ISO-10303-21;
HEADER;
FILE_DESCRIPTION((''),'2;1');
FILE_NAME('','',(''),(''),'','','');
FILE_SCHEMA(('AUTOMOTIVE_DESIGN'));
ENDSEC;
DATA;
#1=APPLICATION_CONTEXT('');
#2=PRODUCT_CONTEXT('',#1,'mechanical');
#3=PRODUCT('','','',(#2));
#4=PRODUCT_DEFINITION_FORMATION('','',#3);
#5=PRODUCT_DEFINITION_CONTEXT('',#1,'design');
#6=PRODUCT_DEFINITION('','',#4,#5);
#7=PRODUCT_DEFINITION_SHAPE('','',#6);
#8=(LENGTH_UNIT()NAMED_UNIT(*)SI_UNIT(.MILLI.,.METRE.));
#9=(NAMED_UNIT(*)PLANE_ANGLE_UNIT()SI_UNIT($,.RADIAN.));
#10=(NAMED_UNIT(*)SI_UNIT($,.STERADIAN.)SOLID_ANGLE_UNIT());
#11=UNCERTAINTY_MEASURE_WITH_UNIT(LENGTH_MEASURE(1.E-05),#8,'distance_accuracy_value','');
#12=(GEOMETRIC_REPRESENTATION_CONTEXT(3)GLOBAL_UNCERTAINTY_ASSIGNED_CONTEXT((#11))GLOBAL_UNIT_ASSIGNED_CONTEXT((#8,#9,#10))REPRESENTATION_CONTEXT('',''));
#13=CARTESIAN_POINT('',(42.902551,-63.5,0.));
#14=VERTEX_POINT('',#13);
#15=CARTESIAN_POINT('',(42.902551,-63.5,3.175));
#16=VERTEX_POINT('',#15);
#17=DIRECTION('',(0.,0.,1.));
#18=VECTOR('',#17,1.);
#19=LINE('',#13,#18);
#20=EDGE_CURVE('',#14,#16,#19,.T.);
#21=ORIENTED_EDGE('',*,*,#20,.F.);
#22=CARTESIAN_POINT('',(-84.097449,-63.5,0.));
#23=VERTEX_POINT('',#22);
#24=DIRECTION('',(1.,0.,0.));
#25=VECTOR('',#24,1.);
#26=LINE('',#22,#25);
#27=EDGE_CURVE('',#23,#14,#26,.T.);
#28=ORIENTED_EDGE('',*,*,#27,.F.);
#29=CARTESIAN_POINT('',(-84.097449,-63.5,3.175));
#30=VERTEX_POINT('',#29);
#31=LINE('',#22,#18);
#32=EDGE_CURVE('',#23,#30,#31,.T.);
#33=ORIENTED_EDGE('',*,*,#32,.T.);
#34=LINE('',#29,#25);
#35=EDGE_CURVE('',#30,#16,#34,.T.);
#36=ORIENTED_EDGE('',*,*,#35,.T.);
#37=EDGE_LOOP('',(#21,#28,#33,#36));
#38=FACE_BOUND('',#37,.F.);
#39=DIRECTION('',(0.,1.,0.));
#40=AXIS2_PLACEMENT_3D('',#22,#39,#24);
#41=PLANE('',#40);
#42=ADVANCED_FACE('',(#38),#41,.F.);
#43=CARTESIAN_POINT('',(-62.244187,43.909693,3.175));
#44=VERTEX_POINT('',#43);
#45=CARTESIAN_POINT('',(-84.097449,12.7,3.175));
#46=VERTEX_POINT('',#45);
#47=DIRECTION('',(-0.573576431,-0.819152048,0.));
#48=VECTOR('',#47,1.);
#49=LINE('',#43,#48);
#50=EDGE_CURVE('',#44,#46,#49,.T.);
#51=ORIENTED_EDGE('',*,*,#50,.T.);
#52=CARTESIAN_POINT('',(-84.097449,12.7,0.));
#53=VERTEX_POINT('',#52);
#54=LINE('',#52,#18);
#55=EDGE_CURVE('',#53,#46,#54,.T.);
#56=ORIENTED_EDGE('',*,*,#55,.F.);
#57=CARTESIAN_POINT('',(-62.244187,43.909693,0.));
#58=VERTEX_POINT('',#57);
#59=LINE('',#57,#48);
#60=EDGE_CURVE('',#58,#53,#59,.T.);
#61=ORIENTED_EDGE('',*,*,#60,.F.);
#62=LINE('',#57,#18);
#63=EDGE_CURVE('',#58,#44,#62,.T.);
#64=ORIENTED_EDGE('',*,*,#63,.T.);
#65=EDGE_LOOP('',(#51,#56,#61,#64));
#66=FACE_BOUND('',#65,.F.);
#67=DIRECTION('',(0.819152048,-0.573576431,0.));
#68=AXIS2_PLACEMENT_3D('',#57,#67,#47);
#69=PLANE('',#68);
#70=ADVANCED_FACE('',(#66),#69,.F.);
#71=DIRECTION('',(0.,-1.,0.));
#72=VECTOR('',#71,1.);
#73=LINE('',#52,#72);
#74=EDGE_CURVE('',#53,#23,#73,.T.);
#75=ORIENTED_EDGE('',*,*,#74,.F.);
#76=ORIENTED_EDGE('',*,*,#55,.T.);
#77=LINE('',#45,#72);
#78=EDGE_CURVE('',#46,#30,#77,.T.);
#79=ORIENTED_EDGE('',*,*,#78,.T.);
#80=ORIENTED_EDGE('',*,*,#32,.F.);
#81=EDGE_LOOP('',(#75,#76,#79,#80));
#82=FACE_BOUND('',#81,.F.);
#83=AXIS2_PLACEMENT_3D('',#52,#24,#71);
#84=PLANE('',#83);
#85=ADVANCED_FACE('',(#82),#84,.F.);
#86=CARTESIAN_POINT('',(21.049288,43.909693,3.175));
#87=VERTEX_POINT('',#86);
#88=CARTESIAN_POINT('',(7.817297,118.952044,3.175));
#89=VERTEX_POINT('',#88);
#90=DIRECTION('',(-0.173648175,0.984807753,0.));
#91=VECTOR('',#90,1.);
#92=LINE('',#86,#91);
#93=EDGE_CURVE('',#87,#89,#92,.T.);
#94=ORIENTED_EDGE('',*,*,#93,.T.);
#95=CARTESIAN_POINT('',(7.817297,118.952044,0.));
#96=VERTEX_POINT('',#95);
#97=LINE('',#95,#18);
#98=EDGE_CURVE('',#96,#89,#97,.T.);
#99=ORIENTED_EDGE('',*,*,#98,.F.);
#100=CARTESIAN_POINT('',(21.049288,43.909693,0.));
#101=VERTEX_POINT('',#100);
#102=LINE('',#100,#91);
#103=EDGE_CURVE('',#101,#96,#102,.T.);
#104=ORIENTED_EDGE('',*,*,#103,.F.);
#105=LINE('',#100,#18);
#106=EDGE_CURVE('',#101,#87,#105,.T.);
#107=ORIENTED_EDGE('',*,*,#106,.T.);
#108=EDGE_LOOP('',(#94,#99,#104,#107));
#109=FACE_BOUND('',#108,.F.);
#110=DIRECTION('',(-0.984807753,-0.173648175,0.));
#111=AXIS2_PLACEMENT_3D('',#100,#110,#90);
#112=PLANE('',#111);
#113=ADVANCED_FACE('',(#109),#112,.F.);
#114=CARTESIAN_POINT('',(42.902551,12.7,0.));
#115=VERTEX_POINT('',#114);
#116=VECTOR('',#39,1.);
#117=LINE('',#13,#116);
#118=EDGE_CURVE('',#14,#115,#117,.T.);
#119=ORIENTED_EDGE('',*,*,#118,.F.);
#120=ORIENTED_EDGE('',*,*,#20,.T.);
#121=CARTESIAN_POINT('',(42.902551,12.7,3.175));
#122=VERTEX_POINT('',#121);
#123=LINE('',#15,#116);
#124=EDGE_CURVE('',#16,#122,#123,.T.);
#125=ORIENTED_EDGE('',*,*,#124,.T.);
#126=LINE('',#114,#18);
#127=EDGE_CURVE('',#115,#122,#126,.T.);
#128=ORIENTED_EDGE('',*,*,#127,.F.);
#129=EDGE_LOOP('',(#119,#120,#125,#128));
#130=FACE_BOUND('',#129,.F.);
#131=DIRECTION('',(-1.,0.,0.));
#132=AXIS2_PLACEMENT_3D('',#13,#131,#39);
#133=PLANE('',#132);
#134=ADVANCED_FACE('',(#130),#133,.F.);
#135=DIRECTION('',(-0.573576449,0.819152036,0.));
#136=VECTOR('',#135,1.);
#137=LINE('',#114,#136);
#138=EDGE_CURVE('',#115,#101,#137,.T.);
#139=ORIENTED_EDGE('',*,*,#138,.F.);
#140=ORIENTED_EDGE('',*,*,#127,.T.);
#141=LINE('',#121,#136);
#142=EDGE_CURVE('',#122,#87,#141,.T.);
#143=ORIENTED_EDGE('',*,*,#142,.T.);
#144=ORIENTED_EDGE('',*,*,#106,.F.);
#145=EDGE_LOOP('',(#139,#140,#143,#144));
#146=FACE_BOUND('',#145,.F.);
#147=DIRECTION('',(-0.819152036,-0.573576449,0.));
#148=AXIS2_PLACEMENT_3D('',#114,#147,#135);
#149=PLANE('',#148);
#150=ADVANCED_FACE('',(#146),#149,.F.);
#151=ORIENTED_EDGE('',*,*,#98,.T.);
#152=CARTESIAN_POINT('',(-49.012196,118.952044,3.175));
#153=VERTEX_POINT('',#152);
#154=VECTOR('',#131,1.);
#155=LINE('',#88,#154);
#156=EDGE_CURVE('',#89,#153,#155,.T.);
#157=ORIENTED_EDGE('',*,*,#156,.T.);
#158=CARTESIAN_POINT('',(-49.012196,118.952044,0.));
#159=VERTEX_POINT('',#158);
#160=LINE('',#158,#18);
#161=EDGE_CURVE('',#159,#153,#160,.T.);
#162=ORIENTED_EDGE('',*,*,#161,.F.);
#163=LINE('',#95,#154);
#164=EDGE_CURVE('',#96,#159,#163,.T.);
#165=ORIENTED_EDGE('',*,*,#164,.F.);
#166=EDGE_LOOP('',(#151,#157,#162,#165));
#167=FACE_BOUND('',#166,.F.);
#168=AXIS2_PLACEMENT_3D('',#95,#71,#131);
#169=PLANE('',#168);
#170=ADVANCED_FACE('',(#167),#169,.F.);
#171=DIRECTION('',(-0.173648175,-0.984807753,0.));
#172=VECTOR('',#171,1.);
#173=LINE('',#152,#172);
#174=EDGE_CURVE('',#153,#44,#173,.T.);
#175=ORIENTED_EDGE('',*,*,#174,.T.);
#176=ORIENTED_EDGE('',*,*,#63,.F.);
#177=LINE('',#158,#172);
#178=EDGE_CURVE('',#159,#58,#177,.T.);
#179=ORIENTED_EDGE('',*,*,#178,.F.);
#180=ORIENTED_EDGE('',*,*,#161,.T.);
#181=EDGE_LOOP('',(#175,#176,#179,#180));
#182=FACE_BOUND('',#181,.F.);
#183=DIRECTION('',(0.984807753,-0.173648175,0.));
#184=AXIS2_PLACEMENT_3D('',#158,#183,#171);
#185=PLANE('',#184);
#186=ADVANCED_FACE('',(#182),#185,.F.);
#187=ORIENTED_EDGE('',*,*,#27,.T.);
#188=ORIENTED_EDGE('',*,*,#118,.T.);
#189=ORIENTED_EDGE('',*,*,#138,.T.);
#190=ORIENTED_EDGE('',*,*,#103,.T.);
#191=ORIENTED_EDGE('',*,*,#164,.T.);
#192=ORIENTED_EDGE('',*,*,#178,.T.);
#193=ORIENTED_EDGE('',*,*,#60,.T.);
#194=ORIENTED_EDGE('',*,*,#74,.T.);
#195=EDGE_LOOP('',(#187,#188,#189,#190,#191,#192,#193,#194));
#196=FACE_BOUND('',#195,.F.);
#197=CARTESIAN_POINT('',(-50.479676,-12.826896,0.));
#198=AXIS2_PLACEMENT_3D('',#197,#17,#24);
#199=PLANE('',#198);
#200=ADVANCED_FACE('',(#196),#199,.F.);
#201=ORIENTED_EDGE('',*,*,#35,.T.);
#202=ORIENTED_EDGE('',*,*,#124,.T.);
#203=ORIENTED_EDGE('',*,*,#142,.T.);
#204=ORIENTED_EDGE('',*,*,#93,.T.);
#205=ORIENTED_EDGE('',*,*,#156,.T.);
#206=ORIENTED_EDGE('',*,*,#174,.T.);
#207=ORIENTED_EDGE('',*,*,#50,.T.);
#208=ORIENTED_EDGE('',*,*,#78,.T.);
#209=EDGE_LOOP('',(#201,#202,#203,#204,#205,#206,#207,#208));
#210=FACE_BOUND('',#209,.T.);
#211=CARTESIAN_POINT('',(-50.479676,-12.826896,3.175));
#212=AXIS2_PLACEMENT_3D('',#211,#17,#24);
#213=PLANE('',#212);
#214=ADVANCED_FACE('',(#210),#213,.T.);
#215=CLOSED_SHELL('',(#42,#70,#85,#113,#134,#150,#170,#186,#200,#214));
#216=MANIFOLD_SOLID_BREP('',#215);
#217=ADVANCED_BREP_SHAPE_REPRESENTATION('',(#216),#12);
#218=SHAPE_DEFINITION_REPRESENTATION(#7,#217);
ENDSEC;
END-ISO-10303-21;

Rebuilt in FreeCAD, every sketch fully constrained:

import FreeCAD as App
import Part
import Sketcher

V = App.Vector
Q = App.Units.Quantity


def add_polygon(sketch, points):
    """Adds a closed chain of lines whose ends are joined by coincident constraints."""
    first, n = sketch.GeometryCount, len(points)
    for a, b in zip(points, points[1:] + points[:1]):
        sketch.addGeometry(Part.LineSegment(App.Vector(*a, 0), App.Vector(*b, 0)), False)
    for i in range(n):
        sketch.addConstraint(Sketcher.Constraint("Coincident", first + i, 2, first + (i + 1) % n, 1))

doc = App.newDocument("Part")
body = doc.addObject("PartDesign::Body", "Body")

sketch1 = body.newObject("Sketcher::SketchObject", "Sketch")
sketch1.AttachmentSupport = (doc.getObject("XY_Plane"), [""])
sketch1.MapMode = "FlatFace"
add_polygon(sketch1, [(-84.097449, -63.5), (42.902551, -63.5), (42.902551, 12.7), (21.049288, 43.909693), (7.817297, 118.952044), (-49.012196, 118.952044), (-62.244187, 43.909693), (-84.097449, 12.7)])
sketch1.addConstraint([
    Sketcher.Constraint("Horizontal", 0),
    Sketcher.Constraint("Vertical", 1),
    Sketcher.Constraint("Horizontal", 4),
    Sketcher.Constraint("Vertical", 7),
    Sketcher.Constraint("Horizontal", 2, 2, 5, 2),
    Sketcher.Constraint("Horizontal", 1, 2, 6, 2),
    Sketcher.Constraint("Equal", 3, 5),
    Sketcher.Constraint("Equal", 2, 6),
    Sketcher.Constraint("DistanceX", 0, 1, 0, 2, Q("5 in")),
    Sketcher.Constraint("DistanceY", 1, 1, 1, 2, Q("3 in")),
    Sketcher.Constraint("Distance", 3, Q("3 in")),
    Sketcher.Constraint("Angle", 2, Q("125.000001 deg")),
    Sketcher.Constraint("Angle", 3, Q("100 deg")),
    Sketcher.Constraint("Distance", 2, Q("1.5 in")),
    Sketcher.Constraint("DistanceY", 0, 2, -1, 1, Q("2.5 in")),
    Sketcher.Constraint("DistanceX", -1, 1, 0, 2, 42.902551),
])
pad1 = body.newObject("PartDesign::Pad", "Pad")
pad1.Profile = sketch1
pad1.Length = Q("0.125 in")

doc.recompute()
